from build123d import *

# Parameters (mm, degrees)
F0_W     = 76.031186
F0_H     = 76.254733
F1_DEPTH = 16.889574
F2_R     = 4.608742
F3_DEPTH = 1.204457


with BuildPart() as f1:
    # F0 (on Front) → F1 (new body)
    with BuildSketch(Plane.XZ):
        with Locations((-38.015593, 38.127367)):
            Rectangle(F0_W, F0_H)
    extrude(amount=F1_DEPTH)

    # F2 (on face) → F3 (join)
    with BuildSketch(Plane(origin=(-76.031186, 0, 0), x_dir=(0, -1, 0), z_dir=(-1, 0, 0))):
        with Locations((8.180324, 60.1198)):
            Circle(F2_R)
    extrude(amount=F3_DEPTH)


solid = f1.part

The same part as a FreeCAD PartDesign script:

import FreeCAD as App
import Part
import Sketcher
from FreeCAD import Vector
Q = App.Units.Quantity


def add_polygon(sketch, points):
    """Adds a closed chain of lines whose ends are joined by coincident constraints."""
    first, n = sketch.GeometryCount, len(points)
    for a, b in zip(points, points[1:] + points[:1]):
        sketch.addGeometry(Part.LineSegment(App.Vector(*a, 0), App.Vector(*b, 0)), False)
    for i in range(n):
        sketch.addConstraint(Sketcher.Constraint("Coincident", first + i, 2, first + (i + 1) % n, 1))

doc = App.newDocument("Part")
body = doc.addObject("PartDesign::Body", "Body")

# Sketch on XZ plane
sketch1 = body.newObject("Sketcher::SketchObject", "Sketch")
sketch1.AttachmentSupport = (doc.getObject("XZ_Plane"), [""])
sketch1.MapMode = "FlatFace"
add_polygon(sketch1, [(-76, 76), (-76, 0), (0, 0), (0, 76)])  # lines 0-3
sketch1.addConstraint(Sketcher.Constraint("Vertical", 0))
sketch1.addConstraint(Sketcher.Constraint("Horizontal", 1))
sketch1.addConstraint(Sketcher.Constraint("Vertical", 2))
sketch1.addConstraint(Sketcher.Constraint("Horizontal", 3))
sketch1.addConstraint(Sketcher.Constraint("Coincident", 1, 2, -1, 1))
sketch1.addConstraint(Sketcher.Constraint("DistanceX", 1, 1, 1, 2, Q("76.031186 mm")))
sketch1.addConstraint(Sketcher.Constraint("DistanceY", 0, 2, 0, 1, Q("76.254733 mm")))
pad1 = body.newObject("PartDesign::Pad", "Pad")
pad1.Profile = sketch1
pad1.Length = 16.889574

# Sketch on YZ plane
sketch2 = body.newObject("Sketcher::SketchObject", "Sketch001")
sketch2.AttachmentSupport = (doc.getObject("YZ_Plane"), [""])
sketch2.MapMode = "FlatFace"
sketch2.AttachmentOffset = App.Placement(Vector(0, 0, -76.031186), App.Rotation())
sketch2.addGeometry(Part.Circle(Vector(-8.2, 60.1, 0), Vector(0, 0, 1), 4.6), False)
sketch2.addConstraint(Sketcher.Constraint("Diameter", 0, Q("9.217484 mm")))
sketch2.addConstraint(Sketcher.Constraint("DistanceY", -1, 1, 0, 3, Q("60.1198 mm")))
sketch2.addConstraint(Sketcher.Constraint("DistanceX", 0, 3, -1, 1, Q("8.180324 mm")))
pad2 = body.newObject("PartDesign::Pad", "Pad001")
pad2.Profile = sketch2
pad2.Length = 1.204457
pad2.Reversed = True

doc.recompute()
